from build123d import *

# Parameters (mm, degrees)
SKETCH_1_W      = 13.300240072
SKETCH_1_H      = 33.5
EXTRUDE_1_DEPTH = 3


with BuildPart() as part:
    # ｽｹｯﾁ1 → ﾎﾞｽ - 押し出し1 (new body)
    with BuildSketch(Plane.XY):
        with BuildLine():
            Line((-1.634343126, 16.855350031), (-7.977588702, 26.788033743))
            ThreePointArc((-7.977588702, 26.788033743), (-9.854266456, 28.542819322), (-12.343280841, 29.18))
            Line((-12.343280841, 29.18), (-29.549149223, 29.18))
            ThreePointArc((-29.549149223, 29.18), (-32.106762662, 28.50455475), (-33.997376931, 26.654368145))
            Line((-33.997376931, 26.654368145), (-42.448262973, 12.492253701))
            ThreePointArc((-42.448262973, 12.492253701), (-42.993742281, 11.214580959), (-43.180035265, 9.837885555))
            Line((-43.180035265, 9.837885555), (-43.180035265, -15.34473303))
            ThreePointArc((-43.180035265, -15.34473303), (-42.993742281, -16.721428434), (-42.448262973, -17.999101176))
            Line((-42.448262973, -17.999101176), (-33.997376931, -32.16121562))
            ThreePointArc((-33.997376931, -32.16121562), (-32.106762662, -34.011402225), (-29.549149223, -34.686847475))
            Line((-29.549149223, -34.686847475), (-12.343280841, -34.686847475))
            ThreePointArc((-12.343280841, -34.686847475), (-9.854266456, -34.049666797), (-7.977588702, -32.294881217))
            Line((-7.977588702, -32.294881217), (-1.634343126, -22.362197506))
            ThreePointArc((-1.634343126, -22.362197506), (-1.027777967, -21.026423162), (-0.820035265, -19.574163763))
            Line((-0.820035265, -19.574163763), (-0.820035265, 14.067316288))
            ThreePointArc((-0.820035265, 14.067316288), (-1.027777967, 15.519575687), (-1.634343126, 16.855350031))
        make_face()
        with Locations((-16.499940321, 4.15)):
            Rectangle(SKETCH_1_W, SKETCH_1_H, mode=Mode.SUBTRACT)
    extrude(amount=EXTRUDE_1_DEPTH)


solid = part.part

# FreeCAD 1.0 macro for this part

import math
import FreeCAD as App
import Part
import Sketcher
from FreeCAD import Vector
Q = App.Units.Quantity


def add_polygon(sketch, points):
    """Adds a closed chain of lines whose ends are joined by coincident constraints."""
    first, n = sketch.GeometryCount, len(points)
    for a, b in zip(points, points[1:] + points[:1]):
        sketch.addGeometry(Part.LineSegment(App.Vector(*a, 0), App.Vector(*b, 0)), False)
    for i in range(n):
        sketch.addConstraint(Sketcher.Constraint("Coincident", first + i, 2, first + (i + 1) % n, 1))

doc = App.newDocument("Part")
body = doc.addObject("PartDesign::Body", "Body")

sketch1 = doc.addObject("Sketcher::SketchObject", "Sketch")
body.addObject(sketch1)
sketch1.AttachmentSupport = (doc.XY_Plane, [""])
sketch1.MapMode = "FlatFace"
sketch1.addGeometry(Part.LineSegment(Vector(-1.6, 16.9, 0), Vector(-8, 26.8, 0)), False)
sketch1.addGeometry(Part.ArcOfCircle(Part.Circle(Vector(-12.3, 24, 0), Vector(0, 0, 1), 5.2), math.radians(33), math.radians(90)), False)
sketch1.addGeometry(Part.LineSegment(Vector(-12.3, 29.2, 0), Vector(-29.5, 29.2, 0)), False)
sketch1.addGeometry(Part.ArcOfCircle(Part.Circle(Vector(-29.5, 24, 0), Vector(0, 0, 1), 5.2), math.radians(90), math.radians(149)), False)
sketch1.addGeometry(Part.LineSegment(Vector(-34, 26.7, 0), Vector(-42.4, 12.5, 0)), False)
sketch1.addGeometry(Part.ArcOfCircle(Part.Circle(Vector(-38, 9.8, 0), Vector(0, 0, 1), 5.2), math.radians(149), math.radians(180)), False)
sketch1.addGeometry(Part.LineSegment(Vector(-43.2, 9.8, 0), Vector(-43.2, -15.3, 0)), False)
sketch1.addGeometry(Part.ArcOfCircle(Part.Circle(Vector(-38, -15.3, 0), Vector(0, 0, 1), 5.2), math.radians(-180), math.radians(-149)), False)
sketch1.addGeometry(Part.LineSegment(Vector(-42.4, -18, 0), Vector(-34, -32.2, 0)), False)
sketch1.addGeometry(Part.ArcOfCircle(Part.Circle(Vector(-29.5, -29.5, 0), Vector(0, 0, 1), 5.2), math.radians(-149), math.radians(-90)), False)
sketch1.addGeometry(Part.LineSegment(Vector(-29.5, -34.7, 0), Vector(-12.3, -34.7, 0)), False)
sketch1.addGeometry(Part.ArcOfCircle(Part.Circle(Vector(-12.3, -29.5, 0), Vector(0, 0, 1), 5.2), math.radians(-90), math.radians(-33)), False)
sketch1.addGeometry(Part.LineSegment(Vector(-8, -32.3, 0), Vector(-1.6, -22.4, 0)), False)
sketch1.addGeometry(Part.ArcOfCircle(Part.Circle(Vector(-6, -19.6, 0), Vector(0, 0, 1), 5.2), math.radians(-33), math.radians(0)), False)
sketch1.addGeometry(Part.LineSegment(Vector(-0.8, -19.6, 0), Vector(-0.8, 14.1, 0)), False)
sketch1.addGeometry(Part.ArcOfCircle(Part.Circle(Vector(-6, 14.1, 0), Vector(0, 0, 1), 5.2), math.radians(0), math.radians(33)), False)
add_polygon(sketch1, [(-9.8, -12.6), (-23.2, -12.6), (-23.2, 20.9), (-9.8, 20.9)])
sketch1.addConstraint(Sketcher.Constraint("Tangent", 0, 2, 1, 1))
sketch1.addConstraint(Sketcher.Constraint("Tangent", 1, 2, 2, 1))
sketch1.addConstraint(Sketcher.Constraint("Tangent", 2, 2, 3, 1))
sketch1.addConstraint(Sketcher.Constraint("Tangent", 3, 2, 4, 1))
sketch1.addConstraint(Sketcher.Constraint("Tangent", 4, 2, 5, 1))
sketch1.addConstraint(Sketcher.Constraint("Tangent", 5, 2, 6, 1))
sketch1.addConstraint(Sketcher.Constraint("Tangent", 6, 2, 7, 1))
sketch1.addConstraint(Sketcher.Constraint("Tangent", 7, 2, 8, 1))
sketch1.addConstraint(Sketcher.Constraint("Tangent", 8, 2, 9, 1))
sketch1.addConstraint(Sketcher.Constraint("Tangent", 9, 2, 10, 1))
sketch1.addConstraint(Sketcher.Constraint("Tangent", 10, 2, 11, 1))
sketch1.addConstraint(Sketcher.Constraint("Tangent", 11, 2, 12, 1))
sketch1.addConstraint(Sketcher.Constraint("Tangent", 12, 2, 13, 1))
sketch1.addConstraint(Sketcher.Constraint("Tangent", 13, 2, 14, 1))
sketch1.addConstraint(Sketcher.Constraint("Tangent", 14, 2, 15, 1))
sketch1.addConstraint(Sketcher.Constraint("Tangent", 15, 2, 0, 1))
sketch1.addConstraint(Sketcher.Constraint("Horizontal", 2))
sketch1.addConstraint(Sketcher.Constraint("Vertical", 6))
sketch1.addConstraint(Sketcher.Constraint("Horizontal", 10))
sketch1.addConstraint(Sketcher.Constraint("Vertical", 14))
sketch1.addConstraint(Sketcher.Constraint("Horizontal", 16))
sketch1.addConstraint(Sketcher.Constraint("Vertical", 17))
sketch1.addConstraint(Sketcher.Constraint("Horizontal", 18))
sketch1.addConstraint(Sketcher.Constraint("Vertical", 19))
sketch1.addConstraint(Sketcher.Constraint("Equal", 1, 3))
sketch1.addConstraint(Sketcher.Constraint("Equal", 3, 5))
sketch1.addConstraint(Sketcher.Constraint("Equal", 5, 7))
sketch1.addConstraint(Sketcher.Constraint("Equal", 7, 9))
sketch1.addConstraint(Sketcher.Constraint("Equal", 9, 11))
sketch1.addConstraint(Sketcher.Constraint("Equal", 11, 13))
sketch1.addConstraint(Sketcher.Constraint("Equal", 13, 15))
sketch1.addConstraint(Sketcher.Constraint("Vertical", 3, 3, 9, 3))
sketch1.addConstraint(Sketcher.Constraint("Vertical", 1, 3, 11, 3))
sketch1.addConstraint(Sketcher.Constraint("Vertical", 4, 2, 7, 2))
sketch1.addConstraint(Sketcher.Constraint("Vertical", 0, 2, 11, 2))
sketch1.addConstraint(Sketcher.Constraint("Radius", 1, Q("5.18 mm")))
sketch1.addConstraint(Sketcher.Constraint("DistanceY", 17, 1, 17, 2, Q("33.5 mm")))
sketch1.addConstraint(Sketcher.Constraint("DistanceY", -1, 1, 1, 3, Q("24 mm")))
sketch1.addConstraint(Sketcher.Constraint("DistanceX", 7, 3, 13, 3, Q("32 mm")))
sketch1.addConstraint(Sketcher.Constraint("DistanceY", 16, 2, -1, 1, Q("12.6 mm")))
sketch1.addConstraint(Sketcher.Constraint("DistanceX", 2, 2, 2, 1, Q("17.205868 mm")))
sketch1.addConstraint(Sketcher.Constraint("DistanceX", 16, 2, 16, 1, Q("13.30024 mm")))
sketch1.addConstraint(Sketcher.Constraint("DistanceY", 6, 2, 6, 1, Q("25.182619 mm")))
sketch1.addConstraint(Sketcher.Constraint("DistanceY", 14, 1, 14, 2, Q("33.64148 mm")))
sketch1.addConstraint(Sketcher.Constraint("DistanceY", 7, 2, -1, 1, Q("17.999101 mm")))
sketch1.addConstraint(Sketcher.Constraint("Distance", 0, Q("11.785371 mm")))
sketch1.addConstraint(Sketcher.Constraint("DistanceX", 1, 3, -1, 1, Q("12.343281 mm")))
sketch1.addConstraint(Sketcher.Constraint("DistanceX", 16, 2, -1, 1, Q("23.15006 mm")))
pad1 = doc.addObject("PartDesign::Pad", "Pad")
body.addObject(pad1)
pad1.Profile = sketch1
pad1.Length = 3

doc.recompute()
